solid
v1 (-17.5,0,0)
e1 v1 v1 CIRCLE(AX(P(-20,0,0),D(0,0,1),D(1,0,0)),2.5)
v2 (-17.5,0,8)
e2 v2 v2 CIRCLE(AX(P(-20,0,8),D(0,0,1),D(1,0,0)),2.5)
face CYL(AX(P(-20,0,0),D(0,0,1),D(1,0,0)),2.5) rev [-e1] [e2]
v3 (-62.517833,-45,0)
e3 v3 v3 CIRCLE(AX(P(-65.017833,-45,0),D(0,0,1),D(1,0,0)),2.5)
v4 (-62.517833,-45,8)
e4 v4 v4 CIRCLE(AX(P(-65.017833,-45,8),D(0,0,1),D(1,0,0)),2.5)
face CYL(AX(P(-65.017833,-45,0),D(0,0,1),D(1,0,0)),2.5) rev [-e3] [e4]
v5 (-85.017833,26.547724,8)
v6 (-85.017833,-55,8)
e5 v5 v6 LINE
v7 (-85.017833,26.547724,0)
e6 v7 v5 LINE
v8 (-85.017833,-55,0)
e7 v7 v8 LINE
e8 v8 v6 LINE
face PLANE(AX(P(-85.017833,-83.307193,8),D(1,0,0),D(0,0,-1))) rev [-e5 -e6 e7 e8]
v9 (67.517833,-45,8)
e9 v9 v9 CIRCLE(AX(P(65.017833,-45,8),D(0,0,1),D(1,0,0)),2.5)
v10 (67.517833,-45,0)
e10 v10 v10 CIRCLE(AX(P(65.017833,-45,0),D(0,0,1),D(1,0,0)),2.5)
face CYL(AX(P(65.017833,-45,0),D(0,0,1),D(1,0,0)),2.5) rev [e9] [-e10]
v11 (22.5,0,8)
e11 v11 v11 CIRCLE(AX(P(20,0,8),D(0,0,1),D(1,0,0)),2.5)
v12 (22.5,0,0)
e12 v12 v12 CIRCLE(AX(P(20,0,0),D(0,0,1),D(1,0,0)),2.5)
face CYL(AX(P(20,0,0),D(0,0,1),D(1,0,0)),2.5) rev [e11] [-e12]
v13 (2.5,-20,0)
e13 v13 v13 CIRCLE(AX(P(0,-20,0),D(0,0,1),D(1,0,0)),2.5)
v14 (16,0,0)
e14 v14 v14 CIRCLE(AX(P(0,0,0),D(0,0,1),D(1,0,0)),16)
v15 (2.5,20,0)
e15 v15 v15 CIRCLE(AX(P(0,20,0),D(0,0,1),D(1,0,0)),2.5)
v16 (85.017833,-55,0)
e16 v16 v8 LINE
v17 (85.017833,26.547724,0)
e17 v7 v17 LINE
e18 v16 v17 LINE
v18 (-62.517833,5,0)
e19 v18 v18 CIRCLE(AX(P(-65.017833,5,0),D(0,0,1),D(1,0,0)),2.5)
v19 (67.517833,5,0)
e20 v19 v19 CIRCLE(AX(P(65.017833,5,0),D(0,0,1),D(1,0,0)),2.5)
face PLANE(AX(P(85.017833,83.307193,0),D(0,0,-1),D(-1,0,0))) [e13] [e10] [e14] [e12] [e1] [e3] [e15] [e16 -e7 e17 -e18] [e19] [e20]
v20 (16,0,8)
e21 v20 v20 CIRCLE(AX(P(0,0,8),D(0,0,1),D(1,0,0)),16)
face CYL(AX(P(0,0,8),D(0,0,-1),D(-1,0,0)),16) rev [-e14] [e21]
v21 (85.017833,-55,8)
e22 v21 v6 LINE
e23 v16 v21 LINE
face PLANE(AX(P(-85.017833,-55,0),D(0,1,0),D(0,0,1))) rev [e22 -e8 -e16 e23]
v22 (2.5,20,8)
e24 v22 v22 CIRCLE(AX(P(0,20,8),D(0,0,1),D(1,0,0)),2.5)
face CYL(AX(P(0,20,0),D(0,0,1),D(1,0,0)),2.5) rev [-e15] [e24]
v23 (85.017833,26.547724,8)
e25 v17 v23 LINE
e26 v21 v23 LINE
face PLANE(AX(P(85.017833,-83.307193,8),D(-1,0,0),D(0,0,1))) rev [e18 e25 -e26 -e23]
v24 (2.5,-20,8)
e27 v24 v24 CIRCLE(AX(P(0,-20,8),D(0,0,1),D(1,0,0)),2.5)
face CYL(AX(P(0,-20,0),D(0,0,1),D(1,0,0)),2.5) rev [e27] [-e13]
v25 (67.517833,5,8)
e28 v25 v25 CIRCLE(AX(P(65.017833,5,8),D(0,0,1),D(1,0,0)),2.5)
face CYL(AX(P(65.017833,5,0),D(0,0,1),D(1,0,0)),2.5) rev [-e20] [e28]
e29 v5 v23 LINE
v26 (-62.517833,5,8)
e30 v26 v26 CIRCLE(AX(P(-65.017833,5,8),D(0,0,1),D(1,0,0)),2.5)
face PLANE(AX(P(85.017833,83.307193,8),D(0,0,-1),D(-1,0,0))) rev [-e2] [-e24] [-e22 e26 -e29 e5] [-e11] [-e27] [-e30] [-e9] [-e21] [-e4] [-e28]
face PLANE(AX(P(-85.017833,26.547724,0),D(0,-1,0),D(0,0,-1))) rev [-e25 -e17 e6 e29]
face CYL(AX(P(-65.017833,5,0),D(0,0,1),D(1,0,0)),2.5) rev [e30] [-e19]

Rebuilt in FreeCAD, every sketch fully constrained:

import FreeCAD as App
import Part
import Sketcher
Q = App.Units.Quantity


def add_polygon(sketch, points):
    """Adds a closed chain of lines whose ends are joined by coincident constraints."""
    first, n = sketch.GeometryCount, len(points)
    for a, b in zip(points, points[1:] + points[:1]):
        sketch.addGeometry(Part.LineSegment(App.Vector(*a, 0), App.Vector(*b, 0)), False)
    for i in range(n):
        sketch.addConstraint(Sketcher.Constraint("Coincident", first + i, 2, first + (i + 1) % n, 1))

doc = App.newDocument("Part")
body = doc.addObject("PartDesign::Body", "Body")

sketch1 = body.newObject("Sketcher::SketchObject", "Sketch")
sketch1.AttachmentSupport = (doc.getObject("XY_Plane"), [""])
sketch1.MapMode = "FlatFace"
add_polygon(sketch1, [(-85, 83), (-85, -83), (85, -83), (85, 83)])
sketch1.addGeometry(Part.Circle(App.Vector(0, 0, 0), App.Vector(0, 0, 1), 16), False)
sketch1.addConstraint([
    Sketcher.Constraint("Vertical", 0),
    Sketcher.Constraint("Horizontal", 1),
    Sketcher.Constraint("Vertical", 2),
    Sketcher.Constraint("Horizontal", 3),
    Sketcher.Constraint("Coincident", 4, 3, -1, 1),
    Sketcher.Constraint("Symmetric", 0, 2, 2, 2, -1, 1),
    Sketcher.Constraint("Diameter", 4, Q("32 mm")),
    Sketcher.Constraint("DistanceX", 1, 1, 1, 2, Q("170.035666 mm")),
    Sketcher.Constraint("DistanceY", 0, 2, 0, 1, Q("166.614387 mm")),
])
pad1 = body.newObject("PartDesign::Pad", "Pad")
pad1.Profile = sketch1
pad1.Length = 8

sketch2 = body.newObject("Sketcher::SketchObject", "Sketch001")
sketch2.AttachmentSupport = (doc.getObject("XY_Plane"), [""])
sketch2.MapMode = "FlatFace"
sketch2.AttachmentOffset = App.Placement(App.Vector(0, 0, 8), App.Rotation())
sketch2.addGeometry(Part.Circle(App.Vector(-65, 5, 0), App.Vector(0, 0, 1), 2.5), False)
sketch2.addGeometry(Part.Circle(App.Vector(-65, -45, 0), App.Vector(0, 0, 1), 2.5), False)
sketch2.addGeometry(Part.Circle(App.Vector(65, 5, 0), App.Vector(0, 0, 1), 2.5), False)
sketch2.addGeometry(Part.Circle(App.Vector(65, -45, 0), App.Vector(0, 0, 1), 2.5), False)
sketch2.addGeometry(Part.Circle(App.Vector(0, 20, 0), App.Vector(0, 0, 1), 2.5), False)
sketch2.addGeometry(Part.Circle(App.Vector(-20, 0, 0), App.Vector(0, 0, 1), 2.5), False)
sketch2.addGeometry(Part.Circle(App.Vector(0, -20, 0), App.Vector(0, 0, 1), 2.5), False)
sketch2.addGeometry(Part.Circle(App.Vector(20, 0, 0), App.Vector(0, 0, 1), 2.5), False)
add_polygon(sketch2, [(-85, 83.3), (-85, 26.5), (85, 26.5), (85, 83.3)])
add_polygon(sketch2, [(-85, -55), (-85, -83.3), (85, -83.3), (85, -55)])
sketch2.addConstraint([
    Sketcher.Constraint("Vertical", 8),
    Sketcher.Constraint("Horizontal", 9),
    Sketcher.Constraint("Vertical", 10),
    Sketcher.Constraint("Horizontal", 11),
    Sketcher.Constraint("Vertical", 12),
    Sketcher.Constraint("Horizontal", 13),
    Sketcher.Constraint("Vertical", 14),
    Sketcher.Constraint("Horizontal", 15),
    Sketcher.Constraint("Equal", 0, 1),
    Sketcher.Constraint("Equal", 1, 2),
    Sketcher.Constraint("Equal", 2, 3),
    Sketcher.Constraint("Equal", 3, 4),
    Sketcher.Constraint("Equal", 4, 5),
    Sketcher.Constraint("Equal", 5, 6),
    Sketcher.Constraint("Equal", 6, 7),
    Sketcher.Constraint("Symmetric", 4, 3, 6, 3, -1, 1),
    Sketcher.Constraint("Symmetric", 5, 3, 7, 3, -1, 1),
    Sketcher.Constraint("Symmetric", 10, 2, 12, 2, -1, 1),
    Sketcher.Constraint("Symmetric", 0, 3, 2, 3, -2),
    Sketcher.Constraint("Symmetric", 1, 3, 3, 3, -2),
    Sketcher.Constraint("PointOnObject", 4, 3, -2),
    Sketcher.Constraint("PointOnObject", 5, 3, -1),
    Sketcher.Constraint("Vertical", 0, 3, 1, 3),
    Sketcher.Constraint("Vertical", 11, 2, 12, 2),
    Sketcher.Constraint("Vertical", 10, 2, 13, 2),
    Sketcher.Constraint("Diameter", 0, Q("5 mm")),
    Sketcher.Constraint("DistanceY", -1, 1, 0, 3, Q("5 mm")),
    Sketcher.Constraint("DistanceY", 1, 3, -1, 1, Q("45 mm")),
    Sketcher.Constraint("DistanceY", -1, 1, 4, 3, Q("20 mm")),
    Sketcher.Constraint("DistanceX", 5, 3, -1, 1, Q("20 mm")),
    Sketcher.Constraint("DistanceY", 14, 2, -1, 1, Q("55 mm")),
    Sketcher.Constraint("DistanceX", 8, 2, 0, 3, Q("20 mm")),
    Sketcher.Constraint("DistanceY", 8, 2, 8, 1, Q("56.759469 mm")),
    Sketcher.Constraint("DistanceX", 9, 1, 9, 2, Q("170.035666 mm")),
    Sketcher.Constraint("DistanceY", 12, 2, 12, 1, Q("28.307193 mm")),
])
pocket1 = body.newObject("PartDesign::Pocket", "Pocket")
pocket1.Profile = sketch2
pocket1.Type = "ThroughAll"

doc.recompute()
